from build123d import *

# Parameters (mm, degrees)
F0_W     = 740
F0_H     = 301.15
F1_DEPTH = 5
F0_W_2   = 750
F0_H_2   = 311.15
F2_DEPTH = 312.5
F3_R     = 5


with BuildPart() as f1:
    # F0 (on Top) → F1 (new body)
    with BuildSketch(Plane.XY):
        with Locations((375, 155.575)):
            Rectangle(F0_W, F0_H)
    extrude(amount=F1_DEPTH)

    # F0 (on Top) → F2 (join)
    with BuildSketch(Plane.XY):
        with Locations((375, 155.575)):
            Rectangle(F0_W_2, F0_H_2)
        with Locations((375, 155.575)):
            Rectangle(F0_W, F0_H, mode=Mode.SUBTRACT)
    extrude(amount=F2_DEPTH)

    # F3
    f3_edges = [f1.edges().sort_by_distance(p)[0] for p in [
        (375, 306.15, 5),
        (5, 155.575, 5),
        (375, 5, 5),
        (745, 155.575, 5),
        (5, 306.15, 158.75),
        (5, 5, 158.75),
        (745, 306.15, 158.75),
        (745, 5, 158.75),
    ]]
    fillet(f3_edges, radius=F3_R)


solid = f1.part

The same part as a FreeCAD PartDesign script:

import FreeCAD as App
import Part
import Sketcher

V = App.Vector


def edges_at(feature, points):
    """Names of the edges that pass closest to the given points."""
    edges = feature.Shape.Edges
    near = lambda p: min(range(len(edges)), key=lambda i: edges[i].distToShape(Part.Vertex(*p))[0])
    return sorted({f"Edge{near(p) + 1}" for p in points})

doc = App.newDocument("Part")
body = doc.addObject("PartDesign::Body", "Body")

# Sketch on XY plane
sketch1 = body.newObject("Sketcher::SketchObject", "Sketch")
sketch1.AttachmentSupport = (doc.getObject("XY_Plane"), [""])
sketch1.MapMode = "FlatFace"
sketch1.addGeometry(Part.LineSegment(V(5, 306.15, 0), V(5, 5, 0)), False)
sketch1.addGeometry(Part.LineSegment(V(5, 5, 0), V(745, 5, 0)), False)
sketch1.addGeometry(Part.LineSegment(V(745, 5, 0), V(745, 306.15, 0)), False)
sketch1.addGeometry(Part.LineSegment(V(745, 306.15, 0), V(5, 306.15, 0)), False)
sketch1.addConstraint(Sketcher.Constraint("Coincident", 0, 2, 1, 1))
sketch1.addConstraint(Sketcher.Constraint("Coincident", 1, 2, 2, 1))
sketch1.addConstraint(Sketcher.Constraint("Coincident", 2, 2, 3, 1))
sketch1.addConstraint(Sketcher.Constraint("Coincident", 3, 2, 0, 1))
sketch1.addConstraint(Sketcher.Constraint("Vertical", 0))
sketch1.addConstraint(Sketcher.Constraint("Horizontal", 1))
sketch1.addConstraint(Sketcher.Constraint("Vertical", 2))
sketch1.addConstraint(Sketcher.Constraint("Horizontal", 3))
sketch1.addConstraint(Sketcher.Constraint("DistanceX", 1, 1, 1, 2, 740.0))
sketch1.addConstraint(Sketcher.Constraint("DistanceX", -1, 1, 0, 2, 5.0))
sketch1.addConstraint(Sketcher.Constraint("DistanceY", -1, 1, 0, 2, 5.0))
sketch1.addConstraint(Sketcher.Constraint("DistanceY", 0, 2, 0, 1, 301.15))
pad1 = body.newObject("PartDesign::Pad", "Pad")
pad1.Profile = sketch1
pad1.Length = 5

# Sketch on XY plane
sketch2 = body.newObject("Sketcher::SketchObject", "Sketch001")
sketch2.AttachmentSupport = (doc.getObject("XY_Plane"), [""])
sketch2.MapMode = "FlatFace"
sketch2.addGeometry(Part.LineSegment(V(0, 311.15, 0), V(0, 0, 0)), False)
sketch2.addGeometry(Part.LineSegment(V(0, 0, 0), V(750, 0, 0)), False)
sketch2.addGeometry(Part.LineSegment(V(750, 0, 0), V(750, 311.15, 0)), False)
sketch2.addGeometry(Part.LineSegment(V(750, 311.15, 0), V(0, 311.15, 0)), False)
sketch2.addGeometry(Part.LineSegment(V(745, 5, 0), V(5, 5, 0)), False)
sketch2.addGeometry(Part.LineSegment(V(5, 5, 0), V(5, 306.15, 0)), False)
sketch2.addGeometry(Part.LineSegment(V(5, 306.15, 0), V(745, 306.15, 0)), False)
sketch2.addGeometry(Part.LineSegment(V(745, 306.15, 0), V(745, 5, 0)), False)
sketch2.addConstraint(Sketcher.Constraint("Coincident", 0, 2, 1, 1))
sketch2.addConstraint(Sketcher.Constraint("Coincident", 1, 2, 2, 1))
sketch2.addConstraint(Sketcher.Constraint("Coincident", 2, 2, 3, 1))
sketch2.addConstraint(Sketcher.Constraint("Coincident", 3, 2, 0, 1))
sketch2.addConstraint(Sketcher.Constraint("Coincident", 4, 2, 5, 1))
sketch2.addConstraint(Sketcher.Constraint("Coincident", 5, 2, 6, 1))
sketch2.addConstraint(Sketcher.Constraint("Coincident", 6, 2, 7, 1))
sketch2.addConstraint(Sketcher.Constraint("Coincident", 7, 2, 4, 1))
sketch2.addConstraint(Sketcher.Constraint("Vertical", 0))
sketch2.addConstraint(Sketcher.Constraint("Horizontal", 1))
sketch2.addConstraint(Sketcher.Constraint("Vertical", 2))
sketch2.addConstraint(Sketcher.Constraint("Horizontal", 3))
sketch2.addConstraint(Sketcher.Constraint("Horizontal", 4))
sketch2.addConstraint(Sketcher.Constraint("Vertical", 5))
sketch2.addConstraint(Sketcher.Constraint("Horizontal", 6))
sketch2.addConstraint(Sketcher.Constraint("Vertical", 7))
sketch2.addConstraint(Sketcher.Constraint("Coincident", 0, 2, -1, 1))
sketch2.addConstraint(Sketcher.Constraint("DistanceX", 1, 1, 1, 2, 750.0))
sketch2.addConstraint(Sketcher.Constraint("DistanceX", 4, 2, 4, 1, 740.0))
sketch2.addConstraint(Sketcher.Constraint("DistanceX", -1, 1, 4, 2, 5.0))
sketch2.addConstraint(Sketcher.Constraint("DistanceY", -1, 1, 4, 2, 5.0))
sketch2.addConstraint(Sketcher.Constraint("DistanceY", 5, 2, 3, 2, 5.0))
sketch2.addConstraint(Sketcher.Constraint("DistanceY", 0, 2, 0, 1, 311.15))
pad2 = body.newObject("PartDesign::Pad", "Pad001")
pad2.Profile = sketch2
pad2.Length = 312.5
doc.recompute()

fillet = body.newObject("PartDesign::Fillet", "Fillet")
fillet.Base = (pad2, edges_at(pad2, [
    (375, 306.15, 5),
    (5, 155.575, 5),
    (375, 5, 5),
    (745, 155.575, 5),
    (5, 306.15, 158.75),
    (5, 5, 158.75),
    (745, 306.15, 158.75),
    (745, 5, 158.75),
]))
fillet.Radius = 5

doc.recompute()
